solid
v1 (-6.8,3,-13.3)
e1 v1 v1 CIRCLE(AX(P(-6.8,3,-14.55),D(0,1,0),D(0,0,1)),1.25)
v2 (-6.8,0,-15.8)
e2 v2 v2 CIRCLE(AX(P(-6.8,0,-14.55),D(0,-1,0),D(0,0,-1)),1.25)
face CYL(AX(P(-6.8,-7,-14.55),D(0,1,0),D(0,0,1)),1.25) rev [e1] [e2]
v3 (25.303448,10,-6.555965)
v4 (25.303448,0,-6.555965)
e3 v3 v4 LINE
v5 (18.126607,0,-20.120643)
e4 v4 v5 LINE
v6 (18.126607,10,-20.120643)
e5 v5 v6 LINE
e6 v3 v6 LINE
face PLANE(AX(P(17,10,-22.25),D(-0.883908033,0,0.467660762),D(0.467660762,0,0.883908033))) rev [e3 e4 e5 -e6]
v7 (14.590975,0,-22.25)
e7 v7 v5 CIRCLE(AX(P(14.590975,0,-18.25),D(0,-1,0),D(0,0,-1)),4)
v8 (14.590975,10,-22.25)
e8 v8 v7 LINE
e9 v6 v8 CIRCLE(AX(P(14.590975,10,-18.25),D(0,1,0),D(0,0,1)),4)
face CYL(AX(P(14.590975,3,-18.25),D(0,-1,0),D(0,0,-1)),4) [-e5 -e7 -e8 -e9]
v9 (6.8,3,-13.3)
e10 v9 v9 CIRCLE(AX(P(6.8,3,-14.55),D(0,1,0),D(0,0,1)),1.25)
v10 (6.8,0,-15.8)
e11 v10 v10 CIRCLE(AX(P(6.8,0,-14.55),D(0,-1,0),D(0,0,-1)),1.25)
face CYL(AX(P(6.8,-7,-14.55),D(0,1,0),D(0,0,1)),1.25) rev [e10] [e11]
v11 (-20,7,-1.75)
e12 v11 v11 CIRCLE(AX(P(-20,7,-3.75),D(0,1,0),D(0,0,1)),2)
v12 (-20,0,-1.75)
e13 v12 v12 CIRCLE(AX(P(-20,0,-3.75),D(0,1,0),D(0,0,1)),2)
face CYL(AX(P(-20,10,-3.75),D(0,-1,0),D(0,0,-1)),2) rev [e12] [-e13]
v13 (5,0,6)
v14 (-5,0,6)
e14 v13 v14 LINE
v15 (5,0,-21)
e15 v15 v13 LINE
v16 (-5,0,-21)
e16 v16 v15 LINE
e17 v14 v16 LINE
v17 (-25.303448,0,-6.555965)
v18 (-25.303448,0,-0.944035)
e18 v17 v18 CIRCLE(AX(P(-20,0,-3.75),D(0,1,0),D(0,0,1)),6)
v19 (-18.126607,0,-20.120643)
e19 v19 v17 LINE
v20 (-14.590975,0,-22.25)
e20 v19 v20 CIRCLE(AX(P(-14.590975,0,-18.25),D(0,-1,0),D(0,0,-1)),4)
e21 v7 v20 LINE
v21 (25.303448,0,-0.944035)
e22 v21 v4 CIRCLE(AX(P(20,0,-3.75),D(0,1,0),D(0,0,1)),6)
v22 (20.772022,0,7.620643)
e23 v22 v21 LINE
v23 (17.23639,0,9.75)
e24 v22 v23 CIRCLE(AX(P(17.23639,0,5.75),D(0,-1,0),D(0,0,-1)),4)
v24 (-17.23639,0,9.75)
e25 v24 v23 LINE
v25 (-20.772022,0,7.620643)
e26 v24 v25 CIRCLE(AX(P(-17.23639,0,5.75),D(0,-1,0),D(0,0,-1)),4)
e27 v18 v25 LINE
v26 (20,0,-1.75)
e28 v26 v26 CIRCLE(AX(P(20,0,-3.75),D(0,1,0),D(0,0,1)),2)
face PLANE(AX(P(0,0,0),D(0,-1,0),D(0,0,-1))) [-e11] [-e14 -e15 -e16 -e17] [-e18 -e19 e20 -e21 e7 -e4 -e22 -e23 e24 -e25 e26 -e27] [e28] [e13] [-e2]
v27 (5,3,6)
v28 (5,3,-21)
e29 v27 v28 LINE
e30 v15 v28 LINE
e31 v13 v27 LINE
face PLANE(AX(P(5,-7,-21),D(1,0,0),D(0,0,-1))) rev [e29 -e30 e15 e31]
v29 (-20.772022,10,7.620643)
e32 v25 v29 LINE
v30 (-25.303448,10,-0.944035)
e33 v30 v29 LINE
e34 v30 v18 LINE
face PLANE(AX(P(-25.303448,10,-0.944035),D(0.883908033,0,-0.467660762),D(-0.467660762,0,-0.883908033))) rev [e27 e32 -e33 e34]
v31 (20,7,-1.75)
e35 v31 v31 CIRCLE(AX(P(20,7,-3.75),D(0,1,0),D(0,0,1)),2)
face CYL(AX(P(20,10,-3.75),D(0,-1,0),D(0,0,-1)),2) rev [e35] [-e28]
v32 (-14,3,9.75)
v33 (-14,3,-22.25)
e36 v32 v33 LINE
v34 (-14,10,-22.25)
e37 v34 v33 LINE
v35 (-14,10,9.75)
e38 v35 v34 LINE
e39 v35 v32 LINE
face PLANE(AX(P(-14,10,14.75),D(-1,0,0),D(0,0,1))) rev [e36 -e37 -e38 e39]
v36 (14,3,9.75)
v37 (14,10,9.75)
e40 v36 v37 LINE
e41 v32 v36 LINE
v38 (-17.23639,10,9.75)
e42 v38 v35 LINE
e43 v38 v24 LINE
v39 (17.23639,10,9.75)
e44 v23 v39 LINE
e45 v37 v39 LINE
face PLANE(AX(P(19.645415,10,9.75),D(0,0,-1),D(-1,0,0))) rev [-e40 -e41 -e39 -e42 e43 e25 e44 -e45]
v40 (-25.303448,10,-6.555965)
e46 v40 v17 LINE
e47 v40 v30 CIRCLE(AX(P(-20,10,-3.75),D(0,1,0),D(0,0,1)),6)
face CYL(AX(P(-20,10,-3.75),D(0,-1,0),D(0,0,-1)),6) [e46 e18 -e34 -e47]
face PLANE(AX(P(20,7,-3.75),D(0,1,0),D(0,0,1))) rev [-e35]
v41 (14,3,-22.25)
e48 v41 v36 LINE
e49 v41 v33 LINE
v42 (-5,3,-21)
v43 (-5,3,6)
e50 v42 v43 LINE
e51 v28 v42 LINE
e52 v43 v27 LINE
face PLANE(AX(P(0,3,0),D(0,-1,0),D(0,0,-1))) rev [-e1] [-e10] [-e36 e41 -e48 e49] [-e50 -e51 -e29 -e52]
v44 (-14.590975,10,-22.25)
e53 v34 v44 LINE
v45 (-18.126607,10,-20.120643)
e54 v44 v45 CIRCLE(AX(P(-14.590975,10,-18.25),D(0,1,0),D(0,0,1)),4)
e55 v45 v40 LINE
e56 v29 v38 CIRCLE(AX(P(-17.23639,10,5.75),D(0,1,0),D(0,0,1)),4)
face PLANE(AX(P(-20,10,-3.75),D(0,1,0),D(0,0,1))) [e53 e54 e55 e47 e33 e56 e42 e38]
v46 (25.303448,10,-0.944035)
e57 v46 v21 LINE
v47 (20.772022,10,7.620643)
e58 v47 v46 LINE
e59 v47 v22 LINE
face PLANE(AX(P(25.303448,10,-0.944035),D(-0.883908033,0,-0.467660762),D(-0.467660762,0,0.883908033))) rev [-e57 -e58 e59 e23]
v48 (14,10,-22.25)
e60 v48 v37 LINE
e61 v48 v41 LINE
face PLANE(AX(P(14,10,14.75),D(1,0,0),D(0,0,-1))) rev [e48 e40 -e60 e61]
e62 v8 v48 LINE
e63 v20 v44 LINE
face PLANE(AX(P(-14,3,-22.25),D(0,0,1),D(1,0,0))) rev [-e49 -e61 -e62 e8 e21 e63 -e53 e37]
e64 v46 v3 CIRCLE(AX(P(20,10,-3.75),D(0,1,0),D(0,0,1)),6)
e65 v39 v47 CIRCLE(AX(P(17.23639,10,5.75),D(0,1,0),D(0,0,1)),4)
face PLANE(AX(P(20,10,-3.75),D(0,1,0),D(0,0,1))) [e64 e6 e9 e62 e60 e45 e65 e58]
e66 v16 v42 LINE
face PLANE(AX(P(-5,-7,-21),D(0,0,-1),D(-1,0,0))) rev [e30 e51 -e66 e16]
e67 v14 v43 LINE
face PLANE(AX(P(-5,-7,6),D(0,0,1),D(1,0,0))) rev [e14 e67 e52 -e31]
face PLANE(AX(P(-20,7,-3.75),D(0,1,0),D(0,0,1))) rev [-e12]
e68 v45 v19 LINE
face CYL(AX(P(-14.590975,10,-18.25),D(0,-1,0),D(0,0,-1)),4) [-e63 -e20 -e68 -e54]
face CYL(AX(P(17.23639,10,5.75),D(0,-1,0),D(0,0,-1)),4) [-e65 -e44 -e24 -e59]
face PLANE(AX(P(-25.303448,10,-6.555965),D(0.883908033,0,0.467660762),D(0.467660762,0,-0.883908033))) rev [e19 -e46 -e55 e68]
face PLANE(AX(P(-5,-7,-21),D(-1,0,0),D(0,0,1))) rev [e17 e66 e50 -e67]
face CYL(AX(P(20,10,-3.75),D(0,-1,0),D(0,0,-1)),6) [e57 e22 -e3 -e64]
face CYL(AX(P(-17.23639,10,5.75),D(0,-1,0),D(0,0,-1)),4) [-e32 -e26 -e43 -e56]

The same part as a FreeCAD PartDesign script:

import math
import FreeCAD as App
import Part
import Sketcher
from FreeCAD import Vector
Q = App.Units.Quantity


def edges_at(feature, points):
    """Names of the edges that pass closest to the given points."""
    edges = feature.Shape.Edges
    near = lambda p: min(range(len(edges)), key=lambda i: edges[i].distToShape(Part.Vertex(*p))[0])
    return sorted({f"Edge{near(p) + 1}" for p in points})


def add_polygon(sketch, points):
    """Adds a closed chain of lines whose ends are joined by coincident constraints."""
    first, n = sketch.GeometryCount, len(points)
    for a, b in zip(points, points[1:] + points[:1]):
        sketch.addGeometry(Part.LineSegment(App.Vector(*a, 0), App.Vector(*b, 0)), False)
    for i in range(n):
        sketch.addConstraint(Sketcher.Constraint("Coincident", first + i, 2, first + (i + 1) % n, 1))

doc = App.newDocument("Part")
body = doc.addObject("PartDesign::Body", "Body")

# Sketch on XZ plane
sketch1 = body.newObject("Sketcher::SketchObject", "Sketch")
sketch1.AttachmentSupport = (doc.getObject("XZ_Plane"), [""])
sketch1.MapMode = "FlatFace"
add_polygon(sketch1, [(-14, -22), (-14, 15), (14, 15), (14, -22)])  # lines 0-3
sketch1.addConstraint([
    Sketcher.Constraint("Vertical", 0),
    Sketcher.Constraint("Horizontal", 1),
    Sketcher.Constraint("Vertical", 2),
    Sketcher.Constraint("Horizontal", 3),
    Sketcher.Constraint("DistanceX", 1, 1, 1, 2, Q("28 mm")),
    Sketcher.Constraint("DistanceY", 0, 1, 0, 2, Q("37 mm")),
    Sketcher.Constraint("DistanceX", 0, 2, -1, 1, Q("14 mm")),
    Sketcher.Constraint("DistanceY", -1, 1, 0, 2, Q("14.75 mm")),
])
pad1 = body.newObject("PartDesign::Pad", "Pad")
pad1.Profile = sketch1
pad1.Length = 3
pad1.Reversed = True

# Sketch on XZ plane
sketch2 = body.newObject("Sketcher::SketchObject", "Sketch001")
sketch2.AttachmentSupport = (doc.getObject("XZ_Plane"), [""])
sketch2.MapMode = "FlatFace"
add_polygon(sketch2, [(-17, 14.8), (-17, -22.2), (-14, -22.2), (-14, 14.8)])  # lines 0-3
add_polygon(sketch2, [(14, 14.8), (14, -22.2), (17, -22.2), (17, 14.8)])  # lines 4-7
sketch2.addConstraint([
    Sketcher.Constraint("Vertical", 0),
    Sketcher.Constraint("Horizontal", 1),
    Sketcher.Constraint("Vertical", 2),
    Sketcher.Constraint("Horizontal", 3),
    Sketcher.Constraint("Vertical", 4),
    Sketcher.Constraint("Horizontal", 5),
    Sketcher.Constraint("Vertical", 6),
    Sketcher.Constraint("Horizontal", 7),
    Sketcher.Constraint("Symmetric", 1, 2, 4, 2, -2),
    Sketcher.Constraint("Symmetric", 3, 2, 6, 2, -2),
    Sketcher.Constraint("DistanceX", 1, 1, 1, 2, Q("3 mm")),
    Sketcher.Constraint("DistanceY", 0, 2, 0, 1, Q("37 mm")),
    Sketcher.Constraint("DistanceX", 0, 2, -1, 1, Q("17 mm")),
    Sketcher.Constraint("DistanceY", 0, 2, -1, 1, Q("22.25 mm")),
])
pad2 = body.newObject("PartDesign::Pad", "Pad001")
pad2.Profile = sketch2
pad2.Length = 3
pad2.Reversed = True

# Sketch on XZ plane
sketch3 = body.newObject("Sketcher::SketchObject", "Sketch002")
sketch3.AttachmentSupport = (doc.getObject("XZ_Plane"), [""])
sketch3.MapMode = "FlatFace"
sketch3.addGeometry([
    Part.LineSegment(Vector(-17, -22.2, 0), Vector(-25.3, -6.6, 0)),  # 0
    Part.ArcOfCircle(Part.Circle(Vector(-20, -3.8, 0), Vector(0, 0, 1), 6), math.radians(152), math.radians(208)),  # 1
    Part.LineSegment(Vector(-25.3, -0.9, 0), Vector(-17, 14.8, 0)),  # 2
    Part.LineSegment(Vector(-17, 14.8, 0), Vector(-14, 14.8, 0)),  # 3
    Part.LineSegment(Vector(-14, 14.8, 0), Vector(-14, -22.2, 0)),  # 4
    Part.LineSegment(Vector(-14, -22.2, 0), Vector(-17, -22.2, 0)),  # 5
    Part.Circle(Vector(-20, -3.8, 0), Vector(0, 0, 1), 2),  # 6
    Part.LineSegment(Vector(25.3, -6.6, 0), Vector(17, -22.2, 0)),  # 7
    Part.LineSegment(Vector(17, -22.2, 0), Vector(14, -22.2, 0)),  # 8
    Part.LineSegment(Vector(14, -22.2, 0), Vector(14, 14.8, 0)),  # 9
    Part.LineSegment(Vector(14, 14.8, 0), Vector(17, 14.8, 0)),  # 10
    Part.LineSegment(Vector(17, 14.8, 0), Vector(25.3, -0.9, 0)),  # 11
    Part.ArcOfCircle(Part.Circle(Vector(20, -3.8, 0), Vector(0, 0, 1), 6), math.radians(-28), math.radians(28)),  # 12
    Part.Circle(Vector(20, -3.8, 0), Vector(0, 0, 1), 2),  # 13
], False)
sketch3.addConstraint([
    Sketcher.Constraint("Tangent", 0, 2, 1, 2),
    Sketcher.Constraint("Tangent", 1, 1, 2, 1),
    Sketcher.Constraint("Coincident", 2, 2, 3, 1),
    Sketcher.Constraint("Coincident", 3, 2, 4, 1),
    Sketcher.Constraint("Coincident", 4, 2, 5, 1),
    Sketcher.Constraint("Coincident", 5, 2, 0, 1),
    Sketcher.Constraint("Coincident", 7, 2, 8, 1),
    Sketcher.Constraint("Coincident", 8, 2, 9, 1),
    Sketcher.Constraint("Coincident", 9, 2, 10, 1),
    Sketcher.Constraint("Coincident", 10, 2, 11, 1),
    Sketcher.Constraint("Tangent", 11, 2, 12, 2),
    Sketcher.Constraint("Tangent", 12, 1, 7, 1),
    Sketcher.Constraint("Horizontal", 3),
    Sketcher.Constraint("Vertical", 4),
    Sketcher.Constraint("Horizontal", 5),
    Sketcher.Constraint("Horizontal", 8),
    Sketcher.Constraint("Vertical", 9),
    Sketcher.Constraint("Horizontal", 10),
    Sketcher.Constraint("Coincident", 6, 3, 1, 3),
    Sketcher.Constraint("Coincident", 13, 3, 12, 3),
    Sketcher.Constraint("Equal", 1, 12),
    Sketcher.Constraint("Equal", 6, 13),
    Sketcher.Constraint("Symmetric", 1, 3, 12, 3, -2),
    Sketcher.Constraint("Symmetric", 5, 2, 7, 2, -2),
    Sketcher.Constraint("Symmetric", 3, 2, 9, 2, -2),
    Sketcher.Constraint("Parallel", 2, 7),
    Sketcher.Constraint("Parallel", 0, 11),
    Sketcher.Constraint("Vertical", 2, 2, 5, 2),
    Sketcher.Constraint("Diameter", 6, Q("4 mm")),
    Sketcher.Constraint("Radius", 1, Q("6 mm")),
    Sketcher.Constraint("DistanceX", 3, 1, 3, 2, Q("3 mm")),
    Sketcher.Constraint("DistanceY", 4, 2, 4, 1, Q("37 mm")),
    Sketcher.Constraint("DistanceX", 1, 3, -1, 1, Q("20 mm")),
    Sketcher.Constraint("DistanceX", 2, 2, -1, 1, Q("17 mm")),
    Sketcher.Constraint("DistanceY", 1, 3, -1, 1, Q("3.75 mm")),
])
pad3 = body.newObject("PartDesign::Pad", "Pad002")
pad3.Profile = sketch3
pad3.Length = 10
pad3.Reversed = True

# Sketch on XZ plane
sketch4 = body.newObject("Sketcher::SketchObject", "Sketch003")
sketch4.AttachmentSupport = (doc.getObject("XZ_Plane"), [""])
sketch4.MapMode = "FlatFace"
sketch4.AttachmentOffset = App.Placement(Vector(0, 0, -7), App.Rotation())
sketch4.addGeometry([
    Part.Circle(Vector(20, -3.8, 0), Vector(0, 0, 1), 2),
    Part.Circle(Vector(-20, -3.8, 0), Vector(0, 0, 1), 2),
], False)
sketch4.addConstraint([
    Sketcher.Constraint("Equal", 0, 1),
    Sketcher.Constraint("Symmetric", 0, 3, 1, 3, -2),
    Sketcher.Constraint("Diameter", 0, Q("4 mm")),
    Sketcher.Constraint("DistanceX", -1, 1, 0, 3, Q("20 mm")),
    Sketcher.Constraint("DistanceY", 0, 3, -1, 1, Q("3.75 mm")),
])
pad4 = body.newObject("PartDesign::Pad", "Pad003")
pad4.Profile = sketch4
pad4.Length = 3
pad4.Reversed = True

# Sketch on XZ plane
sketch5 = body.newObject("Sketcher::SketchObject", "Sketch004")
sketch5.AttachmentSupport = (doc.getObject("XZ_Plane"), [""])
sketch5.MapMode = "FlatFace"
add_polygon(sketch5, [(-20, 15), (-20, 10), (20, 10), (20, 15)])  # lines 0-3
sketch5.addConstraint([
    Sketcher.Constraint("Vertical", 0),
    Sketcher.Constraint("Horizontal", 1),
    Sketcher.Constraint("Vertical", 2),
    Sketcher.Constraint("Horizontal", 3),
    Sketcher.Constraint("DistanceY", 0, 2, 0, 1, Q("5 mm")),
    Sketcher.Constraint("DistanceY", -1, 1, 0, 2, Q("9.75 mm")),
    Sketcher.Constraint("DistanceX", 1, 1, 1, 2, Q("39.290831 mm")),
    Sketcher.Constraint("DistanceX", 0, 2, -1, 1, Q("19.645415 mm")),
])
pocket1 = body.newObject("PartDesign::Pocket", "Pocket")
pocket1.Profile = sketch5
pocket1.Type = "ThroughAll"
pocket1.Midplane = True
doc.recompute()

fillet = body.newObject("PartDesign::Fillet", "Fillet")
fillet.Base = (pocket1, edges_at(pocket1, [
    (19.645, 5, 9.75),
    (-19.645, 5, 9.75),
    (-17, 5, -22.25),
    (17, 5, -22.25),
]))
fillet.Radius = 4

# Sketch on XZ plane
sketch6 = body.newObject("Sketcher::SketchObject", "Sketch005")
sketch6.AttachmentSupport = (doc.getObject("XZ_Plane"), [""])
sketch6.MapMode = "FlatFace"
sketch6.AttachmentOffset = App.Placement(Vector(0, 0, -3), App.Rotation())
sketch6.addGeometry(Part.Circle(Vector(-6.8, -14.6, 0), Vector(0, 0, 1), 1.2), False)  # 0
sketch6.addGeometry(Part.Circle(Vector(6.8, -14.6, 0), Vector(0, 0, 1), 1.2), False)  # 1
add_polygon(sketch6, [(-5, -21), (-5, 6), (5, 6), (5, -21)])  # lines 2-5
sketch6.addConstraint([
    Sketcher.Constraint("Vertical", 2),
    Sketcher.Constraint("Horizontal", 3),
    Sketcher.Constraint("Vertical", 4),
    Sketcher.Constraint("Horizontal", 5),
    Sketcher.Constraint("Equal", 0, 1),
    Sketcher.Constraint("Symmetric", 0, 3, 1, 3, -2),
    Sketcher.Constraint("Diameter", 0, Q("2.5 mm")),
    Sketcher.Constraint("DistanceX", 3, 1, 3, 2, Q("10 mm")),
    Sketcher.Constraint("DistanceY", 2, 1, 2, 2, Q("27 mm")),
    Sketcher.Constraint("DistanceX", 2, 2, -1, 1, Q("5 mm")),
    Sketcher.Constraint("DistanceY", -1, 1, 2, 2, Q("6 mm")),
    Sketcher.Constraint("DistanceX", 0, 3, -1, 1, Q("6.8 mm")),
    Sketcher.Constraint("DistanceY", 0, 3, -1, 1, Q("14.55 mm")),
])
pocket2 = body.newObject("PartDesign::Pocket", "Pocket001")
pocket2.Profile = sketch6
pocket2.Length = 10
pocket2.Reversed = True

doc.recompute()
